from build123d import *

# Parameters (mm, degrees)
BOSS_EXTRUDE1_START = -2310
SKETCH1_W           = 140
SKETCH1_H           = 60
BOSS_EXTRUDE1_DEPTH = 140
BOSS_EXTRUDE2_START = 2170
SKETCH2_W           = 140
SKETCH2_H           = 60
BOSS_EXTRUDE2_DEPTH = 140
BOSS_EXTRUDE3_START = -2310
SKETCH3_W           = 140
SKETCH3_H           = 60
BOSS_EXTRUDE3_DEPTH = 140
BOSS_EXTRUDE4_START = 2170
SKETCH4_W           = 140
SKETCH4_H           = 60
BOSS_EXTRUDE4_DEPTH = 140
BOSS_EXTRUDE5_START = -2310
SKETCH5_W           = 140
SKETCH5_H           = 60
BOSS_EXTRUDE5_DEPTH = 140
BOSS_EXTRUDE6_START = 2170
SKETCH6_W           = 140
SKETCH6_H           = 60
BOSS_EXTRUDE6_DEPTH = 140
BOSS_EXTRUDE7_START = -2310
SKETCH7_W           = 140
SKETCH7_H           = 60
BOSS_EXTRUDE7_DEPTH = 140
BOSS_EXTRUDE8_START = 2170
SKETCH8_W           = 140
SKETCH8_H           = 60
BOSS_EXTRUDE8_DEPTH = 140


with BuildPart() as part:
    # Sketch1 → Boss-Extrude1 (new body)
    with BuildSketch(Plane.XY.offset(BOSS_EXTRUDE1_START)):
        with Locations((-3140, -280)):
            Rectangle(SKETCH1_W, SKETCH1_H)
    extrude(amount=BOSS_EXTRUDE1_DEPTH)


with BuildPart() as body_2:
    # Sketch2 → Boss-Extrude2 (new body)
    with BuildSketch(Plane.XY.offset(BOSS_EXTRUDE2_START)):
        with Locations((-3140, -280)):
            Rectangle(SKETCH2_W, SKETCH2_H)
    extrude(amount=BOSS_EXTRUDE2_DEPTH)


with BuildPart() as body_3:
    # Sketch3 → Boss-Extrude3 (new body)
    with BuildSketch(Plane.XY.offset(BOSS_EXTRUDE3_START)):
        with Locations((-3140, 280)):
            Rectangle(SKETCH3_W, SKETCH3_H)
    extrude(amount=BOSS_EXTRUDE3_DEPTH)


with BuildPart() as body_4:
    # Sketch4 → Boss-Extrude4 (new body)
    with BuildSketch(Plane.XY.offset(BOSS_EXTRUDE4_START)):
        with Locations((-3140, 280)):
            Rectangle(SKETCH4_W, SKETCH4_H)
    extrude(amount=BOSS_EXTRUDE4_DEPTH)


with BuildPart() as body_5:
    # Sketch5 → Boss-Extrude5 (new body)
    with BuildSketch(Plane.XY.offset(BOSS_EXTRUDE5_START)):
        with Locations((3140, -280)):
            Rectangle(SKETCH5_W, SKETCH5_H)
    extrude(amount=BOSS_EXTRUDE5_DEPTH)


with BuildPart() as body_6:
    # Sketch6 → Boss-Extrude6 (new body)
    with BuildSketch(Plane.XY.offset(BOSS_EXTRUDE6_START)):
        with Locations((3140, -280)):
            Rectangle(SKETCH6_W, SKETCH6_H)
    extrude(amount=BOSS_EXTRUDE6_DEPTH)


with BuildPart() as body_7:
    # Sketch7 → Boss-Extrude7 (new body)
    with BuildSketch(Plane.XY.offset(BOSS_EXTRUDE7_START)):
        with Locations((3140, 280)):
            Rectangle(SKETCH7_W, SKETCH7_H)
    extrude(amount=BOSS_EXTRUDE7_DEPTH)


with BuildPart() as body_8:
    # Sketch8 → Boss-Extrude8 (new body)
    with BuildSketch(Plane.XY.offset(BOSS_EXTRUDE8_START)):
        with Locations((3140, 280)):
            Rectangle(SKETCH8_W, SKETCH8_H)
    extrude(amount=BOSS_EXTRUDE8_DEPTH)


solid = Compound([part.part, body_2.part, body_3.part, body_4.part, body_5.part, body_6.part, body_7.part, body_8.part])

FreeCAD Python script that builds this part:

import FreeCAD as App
import Part
import Sketcher
from FreeCAD import Vector

doc = App.newDocument("Part")
params = doc.addObject("Spreadsheet::Sheet", "Params")
for row, (alias, value) in enumerate([
    ("sketch1_width", "140 mm"),
    ("sketch1_height", "60 mm"),
    ("pad1_length", "140 mm"),
    ("sketch2_width", "140 mm"),
    ("sketch2_height", "60 mm"),
    ("pad2_length", "140 mm"),
    ("sketch3_width", "140 mm"),
    ("sketch3_height", "60 mm"),
    ("pad3_length", "140 mm"),
    ("sketch4_width", "140 mm"),
    ("sketch4_height", "60 mm"),
    ("pad4_length", "140 mm"),
    ("sketch5_width", "140 mm"),
    ("sketch5_height", "60 mm"),
    ("pad5_length", "140 mm"),
    ("sketch6_width", "140 mm"),
    ("sketch6_height", "60 mm"),
    ("pad6_length", "140 mm"),
    ("sketch7_width", "140 mm"),
    ("sketch7_height", "60 mm"),
    ("pad7_length", "140 mm"),
    ("sketch8_width", "140 mm"),
    ("sketch8_height", "60 mm"),
    ("pad8_length", "140 mm"),
], start=1):
    params.set(f"A{row}", alias)
    params.set(f"B{row}", "=" + value)
    params.setAlias(f"B{row}", alias)

body = doc.addObject("PartDesign::Body", "Body")

# Sketch on XY plane
sketch1 = body.newObject("Sketcher::SketchObject", "Sketch")
sketch1.AttachmentSupport = (doc.getObject("XY_Plane"), [""])
sketch1.MapMode = "FlatFace"
sketch1.AttachmentOffset = App.Placement(Vector(0, 0, -2310), App.Rotation())
sketch1.addGeometry(Part.LineSegment(Vector(-3210, -250, 0), Vector(-3210, -310, 0)), False)
sketch1.addGeometry(Part.LineSegment(Vector(-3210, -310, 0), Vector(-3070, -310, 0)), False)
sketch1.addGeometry(Part.LineSegment(Vector(-3070, -310, 0), Vector(-3070, -250, 0)), False)
sketch1.addGeometry(Part.LineSegment(Vector(-3070, -250, 0), Vector(-3210, -250, 0)), False)
sketch1.addConstraint(Sketcher.Constraint("Coincident", 0, 2, 1, 1))
sketch1.addConstraint(Sketcher.Constraint("Coincident", 1, 2, 2, 1))
sketch1.addConstraint(Sketcher.Constraint("Coincident", 2, 2, 3, 1))
sketch1.addConstraint(Sketcher.Constraint("Coincident", 3, 2, 0, 1))
sketch1.addConstraint(Sketcher.Constraint("Vertical", 0))
sketch1.addConstraint(Sketcher.Constraint("Horizontal", 1))
sketch1.addConstraint(Sketcher.Constraint("Vertical", 2))
sketch1.addConstraint(Sketcher.Constraint("Horizontal", 3))
sketch1.addConstraint(Sketcher.Constraint("DistanceX", 1, 1, 1, 2, 140.0))
sketch1.addConstraint(Sketcher.Constraint("DistanceY", 0, 2, 0, 1, 60.0))
sketch1.addConstraint(Sketcher.Constraint("DistanceX", 0, 2, -1, 1, 3210.0))
sketch1.addConstraint(Sketcher.Constraint("DistanceY", 0, 2, -1, 1, 310.0))
sketch1.setExpression("Constraints[8]", "Params.sketch1_width")
sketch1.setExpression("Constraints[9]", "Params.sketch1_height")
pad1 = body.newObject("PartDesign::Pad", "Pad")
pad1.Profile = sketch1
pad1.setExpression("Length", "Params.pad1_length")
body2 = doc.addObject("PartDesign::Body", "Body001")

# Sketch on XY plane
sketch2 = body2.newObject("Sketcher::SketchObject", "Sketch001")
sketch2.AttachmentSupport = (doc.getObject("XY_Plane001"), [""])
sketch2.MapMode = "FlatFace"
sketch2.AttachmentOffset = App.Placement(Vector(0, 0, 2170), App.Rotation())
sketch2.addGeometry(Part.LineSegment(Vector(-3210, -250, 0), Vector(-3210, -310, 0)), False)
sketch2.addGeometry(Part.LineSegment(Vector(-3210, -310, 0), Vector(-3070, -310, 0)), False)
sketch2.addGeometry(Part.LineSegment(Vector(-3070, -310, 0), Vector(-3070, -250, 0)), False)
sketch2.addGeometry(Part.LineSegment(Vector(-3070, -250, 0), Vector(-3210, -250, 0)), False)
sketch2.addConstraint(Sketcher.Constraint("Coincident", 0, 2, 1, 1))
sketch2.addConstraint(Sketcher.Constraint("Coincident", 1, 2, 2, 1))
sketch2.addConstraint(Sketcher.Constraint("Coincident", 2, 2, 3, 1))
sketch2.addConstraint(Sketcher.Constraint("Coincident", 3, 2, 0, 1))
sketch2.addConstraint(Sketcher.Constraint("Vertical", 0))
sketch2.addConstraint(Sketcher.Constraint("Horizontal", 1))
sketch2.addConstraint(Sketcher.Constraint("Vertical", 2))
sketch2.addConstraint(Sketcher.Constraint("Horizontal", 3))
sketch2.addConstraint(Sketcher.Constraint("DistanceX", 1, 1, 1, 2, 140.0))
sketch2.addConstraint(Sketcher.Constraint("DistanceY", 0, 2, 0, 1, 60.0))
sketch2.addConstraint(Sketcher.Constraint("DistanceX", 0, 2, -1, 1, 3210.0))
sketch2.addConstraint(Sketcher.Constraint("DistanceY", 0, 2, -1, 1, 310.0))
sketch2.setExpression("Constraints[8]", "Params.sketch2_width")
sketch2.setExpression("Constraints[9]", "Params.sketch2_height")
pad2 = body2.newObject("PartDesign::Pad", "Pad001")
pad2.Profile = sketch2
pad2.setExpression("Length", "Params.pad2_length")
body3 = doc.addObject("PartDesign::Body", "Body002")

# Sketch on XY plane
sketch3 = body3.newObject("Sketcher::SketchObject", "Sketch002")
sketch3.AttachmentSupport = (doc.getObject("XY_Plane002"), [""])
sketch3.MapMode = "FlatFace"
sketch3.AttachmentOffset = App.Placement(Vector(0, 0, -2310), App.Rotation())
sketch3.addGeometry(Part.LineSegment(Vector(-3210, 310, 0), Vector(-3210, 250, 0)), False)
sketch3.addGeometry(Part.LineSegment(Vector(-3210, 250, 0), Vector(-3070, 250, 0)), False)
sketch3.addGeometry(Part.LineSegment(Vector(-3070, 250, 0), Vector(-3070, 310, 0)), False)
sketch3.addGeometry(Part.LineSegment(Vector(-3070, 310, 0), Vector(-3210, 310, 0)), False)
sketch3.addConstraint(Sketcher.Constraint("Coincident", 0, 2, 1, 1))
sketch3.addConstraint(Sketcher.Constraint("Coincident", 1, 2, 2, 1))
sketch3.addConstraint(Sketcher.Constraint("Coincident", 2, 2, 3, 1))
sketch3.addConstraint(Sketcher.Constraint("Coincident", 3, 2, 0, 1))
sketch3.addConstraint(Sketcher.Constraint("Vertical", 0))
sketch3.addConstraint(Sketcher.Constraint("Horizontal", 1))
sketch3.addConstraint(Sketcher.Constraint("Vertical", 2))
sketch3.addConstraint(Sketcher.Constraint("Horizontal", 3))
sketch3.addConstraint(Sketcher.Constraint("DistanceX", 1, 1, 1, 2, 140.0))
sketch3.addConstraint(Sketcher.Constraint("DistanceY", 0, 2, 0, 1, 60.0))
sketch3.addConstraint(Sketcher.Constraint("DistanceX", 0, 2, -1, 1, 3210.0))
sketch3.addConstraint(Sketcher.Constraint("DistanceY", -1, 1, 0, 2, 250.0))
sketch3.setExpression("Constraints[8]", "Params.sketch3_width")
sketch3.setExpression("Constraints[9]", "Params.sketch3_height")
pad3 = body3.newObject("PartDesign::Pad", "Pad002")
pad3.Profile = sketch3
pad3.setExpression("Length", "Params.pad3_length")
body4 = doc.addObject("PartDesign::Body", "Body003")

# Sketch on XY plane
sketch4 = body4.newObject("Sketcher::SketchObject", "Sketch003")
sketch4.AttachmentSupport = (doc.getObject("XY_Plane003"), [""])
sketch4.MapMode = "FlatFace"
sketch4.AttachmentOffset = App.Placement(Vector(0, 0, 2170), App.Rotation())
sketch4.addGeometry(Part.LineSegment(Vector(-3210, 310, 0), Vector(-3210, 250, 0)), False)
sketch4.addGeometry(Part.LineSegment(Vector(-3210, 250, 0), Vector(-3070, 250, 0)), False)
sketch4.addGeometry(Part.LineSegment(Vector(-3070, 250, 0), Vector(-3070, 310, 0)), False)
sketch4.addGeometry(Part.LineSegment(Vector(-3070, 310, 0), Vector(-3210, 310, 0)), False)
sketch4.addConstraint(Sketcher.Constraint("Coincident", 0, 2, 1, 1))
sketch4.addConstraint(Sketcher.Constraint("Coincident", 1, 2, 2, 1))
sketch4.addConstraint(Sketcher.Constraint("Coincident", 2, 2, 3, 1))
sketch4.addConstraint(Sketcher.Constraint("Coincident", 3, 2, 0, 1))
sketch4.addConstraint(Sketcher.Constraint("Vertical", 0))
sketch4.addConstraint(Sketcher.Constraint("Horizontal", 1))
sketch4.addConstraint(Sketcher.Constraint("Vertical", 2))
sketch4.addConstraint(Sketcher.Constraint("Horizontal", 3))
sketch4.addConstraint(Sketcher.Constraint("DistanceX", 1, 1, 1, 2, 140.0))
sketch4.addConstraint(Sketcher.Constraint("DistanceY", 0, 2, 0, 1, 60.0))
sketch4.addConstraint(Sketcher.Constraint("DistanceX", 0, 2, -1, 1, 3210.0))
sketch4.addConstraint(Sketcher.Constraint("DistanceY", -1, 1, 0, 2, 250.0))
sketch4.setExpression("Constraints[8]", "Params.sketch4_width")
sketch4.setExpression("Constraints[9]", "Params.sketch4_height")
pad4 = body4.newObject("PartDesign::Pad", "Pad003")
pad4.Profile = sketch4
pad4.setExpression("Length", "Params.pad4_length")
body5 = doc.addObject("PartDesign::Body", "Body004")

# Sketch on XY plane
sketch5 = body5.newObject("Sketcher::SketchObject", "Sketch004")
sketch5.AttachmentSupport = (doc.getObject("XY_Plane004"), [""])
sketch5.MapMode = "FlatFace"
sketch5.AttachmentOffset = App.Placement(Vector(0, 0, -2310), App.Rotation())
sketch5.addGeometry(Part.LineSegment(Vector(3070, -250, 0), Vector(3070, -310, 0)), False)
sketch5.addGeometry(Part.LineSegment(Vector(3070, -310, 0), Vector(3210, -310, 0)), False)
sketch5.addGeometry(Part.LineSegment(Vector(3210, -310, 0), Vector(3210, -250, 0)), False)
sketch5.addGeometry(Part.LineSegment(Vector(3210, -250, 0), Vector(3070, -250, 0)), False)
sketch5.addConstraint(Sketcher.Constraint("Coincident", 0, 2, 1, 1))
sketch5.addConstraint(Sketcher.Constraint("Coincident", 1, 2, 2, 1))
sketch5.addConstraint(Sketcher.Constraint("Coincident", 2, 2, 3, 1))
sketch5.addConstraint(Sketcher.Constraint("Coincident", 3, 2, 0, 1))
sketch5.addConstraint(Sketcher.Constraint("Vertical", 0))
sketch5.addConstraint(Sketcher.Constraint("Horizontal", 1))
sketch5.addConstraint(Sketcher.Constraint("Vertical", 2))
sketch5.addConstraint(Sketcher.Constraint("Horizontal", 3))
sketch5.addConstraint(Sketcher.Constraint("DistanceX", 1, 1, 1, 2, 140.0))
sketch5.addConstraint(Sketcher.Constraint("DistanceY", 0, 2, 0, 1, 60.0))
sketch5.addConstraint(Sketcher.Constraint("DistanceX", -1, 1, 0, 2, 3070.0))
sketch5.addConstraint(Sketcher.Constraint("DistanceY", 0, 2, -1, 1, 310.0))
sketch5.setExpression("Constraints[8]", "Params.sketch5_width")
sketch5.setExpression("Constraints[9]", "Params.sketch5_height")
pad5 = body5.newObject("PartDesign::Pad", "Pad004")
pad5.Profile = sketch5
pad5.setExpression("Length", "Params.pad5_length")
body6 = doc.addObject("PartDesign::Body", "Body005")

# Sketch on XY plane
sketch6 = body6.newObject("Sketcher::SketchObject", "Sketch005")
sketch6.AttachmentSupport = (doc.getObject("XY_Plane005"), [""])
sketch6.MapMode = "FlatFace"
sketch6.AttachmentOffset = App.Placement(Vector(0, 0, 2170), App.Rotation())
sketch6.addGeometry(Part.LineSegment(Vector(3070, -250, 0), Vector(3070, -310, 0)), False)
sketch6.addGeometry(Part.LineSegment(Vector(3070, -310, 0), Vector(3210, -310, 0)), False)
sketch6.addGeometry(Part.LineSegment(Vector(3210, -310, 0), Vector(3210, -250, 0)), False)
sketch6.addGeometry(Part.LineSegment(Vector(3210, -250, 0), Vector(3070, -250, 0)), False)
sketch6.addConstraint(Sketcher.Constraint("Coincident", 0, 2, 1, 1))
sketch6.addConstraint(Sketcher.Constraint("Coincident", 1, 2, 2, 1))
sketch6.addConstraint(Sketcher.Constraint("Coincident", 2, 2, 3, 1))
sketch6.addConstraint(Sketcher.Constraint("Coincident", 3, 2, 0, 1))
sketch6.addConstraint(Sketcher.Constraint("Vertical", 0))
sketch6.addConstraint(Sketcher.Constraint("Horizontal", 1))
sketch6.addConstraint(Sketcher.Constraint("Vertical", 2))
sketch6.addConstraint(Sketcher.Constraint("Horizontal", 3))
sketch6.addConstraint(Sketcher.Constraint("DistanceX", 1, 1, 1, 2, 140.0))
sketch6.addConstraint(Sketcher.Constraint("DistanceY", 0, 2, 0, 1, 60.0))
sketch6.addConstraint(Sketcher.Constraint("DistanceX", -1, 1, 0, 2, 3070.0))
sketch6.addConstraint(Sketcher.Constraint("DistanceY", 0, 2, -1, 1, 310.0))
sketch6.setExpression("Constraints[8]", "Params.sketch6_width")
sketch6.setExpression("Constraints[9]", "Params.sketch6_height")
pad6 = body6.newObject("PartDesign::Pad", "Pad005")
pad6.Profile = sketch6
pad6.setExpression("Length", "Params.pad6_length")
body7 = doc.addObject("PartDesign::Body", "Body006")

# Sketch on XY plane
sketch7 = body7.newObject("Sketcher::SketchObject", "Sketch006")
sketch7.AttachmentSupport = (doc.getObject("XY_Plane006"), [""])
sketch7.MapMode = "FlatFace"
sketch7.AttachmentOffset = App.Placement(Vector(0, 0, -2310), App.Rotation())
sketch7.addGeometry(Part.LineSegment(Vector(3070, 310, 0), Vector(3070, 250, 0)), False)
sketch7.addGeometry(Part.LineSegment(Vector(3070, 250, 0), Vector(3210, 250, 0)), False)
sketch7.addGeometry(Part.LineSegment(Vector(3210, 250, 0), Vector(3210, 310, 0)), False)
sketch7.addGeometry(Part.LineSegment(Vector(3210, 310, 0), Vector(3070, 310, 0)), False)
sketch7.addConstraint(Sketcher.Constraint("Coincident", 0, 2, 1, 1))
sketch7.addConstraint(Sketcher.Constraint("Coincident", 1, 2, 2, 1))
sketch7.addConstraint(Sketcher.Constraint("Coincident", 2, 2, 3, 1))
sketch7.addConstraint(Sketcher.Constraint("Coincident", 3, 2, 0, 1))
sketch7.addConstraint(Sketcher.Constraint("Vertical", 0))
sketch7.addConstraint(Sketcher.Constraint("Horizontal", 1))
sketch7.addConstraint(Sketcher.Constraint("Vertical", 2))
sketch7.addConstraint(Sketcher.Constraint("Horizontal", 3))
sketch7.addConstraint(Sketcher.Constraint("DistanceX", 1, 1, 1, 2, 140.0))
sketch7.addConstraint(Sketcher.Constraint("DistanceY", 0, 2, 0, 1, 60.0))
sketch7.addConstraint(Sketcher.Constraint("DistanceX", -1, 1, 0, 2, 3070.0))
sketch7.addConstraint(Sketcher.Constraint("DistanceY", -1, 1, 0, 2, 250.0))
sketch7.setExpression("Constraints[8]", "Params.sketch7_width")
sketch7.setExpression("Constraints[9]", "Params.sketch7_height")
pad7 = body7.newObject("PartDesign::Pad", "Pad006")
pad7.Profile = sketch7
pad7.setExpression("Length", "Params.pad7_length")
body8 = doc.addObject("PartDesign::Body", "Body007")

# Sketch on XY plane
sketch8 = body8.newObject("Sketcher::SketchObject", "Sketch007")
sketch8.AttachmentSupport = (doc.getObject("XY_Plane007"), [""])
sketch8.MapMode = "FlatFace"
sketch8.AttachmentOffset = App.Placement(Vector(0, 0, 2170), App.Rotation())
sketch8.addGeometry(Part.LineSegment(Vector(3070, 310, 0), Vector(3070, 250, 0)), False)
sketch8.addGeometry(Part.LineSegment(Vector(3070, 250, 0), Vector(3210, 250, 0)), False)
sketch8.addGeometry(Part.LineSegment(Vector(3210, 250, 0), Vector(3210, 310, 0)), False)
sketch8.addGeometry(Part.LineSegment(Vector(3210, 310, 0), Vector(3070, 310, 0)), False)
sketch8.addConstraint(Sketcher.Constraint("Coincident", 0, 2, 1, 1))
sketch8.addConstraint(Sketcher.Constraint("Coincident", 1, 2, 2, 1))
sketch8.addConstraint(Sketcher.Constraint("Coincident", 2, 2, 3, 1))
sketch8.addConstraint(Sketcher.Constraint("Coincident", 3, 2, 0, 1))
sketch8.addConstraint(Sketcher.Constraint("Vertical", 0))
sketch8.addConstraint(Sketcher.Constraint("Horizontal", 1))
sketch8.addConstraint(Sketcher.Constraint("Vertical", 2))
sketch8.addConstraint(Sketcher.Constraint("Horizontal", 3))
sketch8.addConstraint(Sketcher.Constraint("DistanceX", 1, 1, 1, 2, 140.0))
sketch8.addConstraint(Sketcher.Constraint("DistanceY", 0, 2, 0, 1, 60.0))
sketch8.addConstraint(Sketcher.Constraint("DistanceX", -1, 1, 0, 2, 3070.0))
sketch8.addConstraint(Sketcher.Constraint("DistanceY", -1, 1, 0, 2, 250.0))
sketch8.setExpression("Constraints[8]", "Params.sketch8_width")
sketch8.setExpression("Constraints[9]", "Params.sketch8_height")
pad8 = body8.newObject("PartDesign::Pad", "Pad007")
pad8.Profile = sketch8
pad8.setExpression("Length", "Params.pad8_length")

doc.recompute()
